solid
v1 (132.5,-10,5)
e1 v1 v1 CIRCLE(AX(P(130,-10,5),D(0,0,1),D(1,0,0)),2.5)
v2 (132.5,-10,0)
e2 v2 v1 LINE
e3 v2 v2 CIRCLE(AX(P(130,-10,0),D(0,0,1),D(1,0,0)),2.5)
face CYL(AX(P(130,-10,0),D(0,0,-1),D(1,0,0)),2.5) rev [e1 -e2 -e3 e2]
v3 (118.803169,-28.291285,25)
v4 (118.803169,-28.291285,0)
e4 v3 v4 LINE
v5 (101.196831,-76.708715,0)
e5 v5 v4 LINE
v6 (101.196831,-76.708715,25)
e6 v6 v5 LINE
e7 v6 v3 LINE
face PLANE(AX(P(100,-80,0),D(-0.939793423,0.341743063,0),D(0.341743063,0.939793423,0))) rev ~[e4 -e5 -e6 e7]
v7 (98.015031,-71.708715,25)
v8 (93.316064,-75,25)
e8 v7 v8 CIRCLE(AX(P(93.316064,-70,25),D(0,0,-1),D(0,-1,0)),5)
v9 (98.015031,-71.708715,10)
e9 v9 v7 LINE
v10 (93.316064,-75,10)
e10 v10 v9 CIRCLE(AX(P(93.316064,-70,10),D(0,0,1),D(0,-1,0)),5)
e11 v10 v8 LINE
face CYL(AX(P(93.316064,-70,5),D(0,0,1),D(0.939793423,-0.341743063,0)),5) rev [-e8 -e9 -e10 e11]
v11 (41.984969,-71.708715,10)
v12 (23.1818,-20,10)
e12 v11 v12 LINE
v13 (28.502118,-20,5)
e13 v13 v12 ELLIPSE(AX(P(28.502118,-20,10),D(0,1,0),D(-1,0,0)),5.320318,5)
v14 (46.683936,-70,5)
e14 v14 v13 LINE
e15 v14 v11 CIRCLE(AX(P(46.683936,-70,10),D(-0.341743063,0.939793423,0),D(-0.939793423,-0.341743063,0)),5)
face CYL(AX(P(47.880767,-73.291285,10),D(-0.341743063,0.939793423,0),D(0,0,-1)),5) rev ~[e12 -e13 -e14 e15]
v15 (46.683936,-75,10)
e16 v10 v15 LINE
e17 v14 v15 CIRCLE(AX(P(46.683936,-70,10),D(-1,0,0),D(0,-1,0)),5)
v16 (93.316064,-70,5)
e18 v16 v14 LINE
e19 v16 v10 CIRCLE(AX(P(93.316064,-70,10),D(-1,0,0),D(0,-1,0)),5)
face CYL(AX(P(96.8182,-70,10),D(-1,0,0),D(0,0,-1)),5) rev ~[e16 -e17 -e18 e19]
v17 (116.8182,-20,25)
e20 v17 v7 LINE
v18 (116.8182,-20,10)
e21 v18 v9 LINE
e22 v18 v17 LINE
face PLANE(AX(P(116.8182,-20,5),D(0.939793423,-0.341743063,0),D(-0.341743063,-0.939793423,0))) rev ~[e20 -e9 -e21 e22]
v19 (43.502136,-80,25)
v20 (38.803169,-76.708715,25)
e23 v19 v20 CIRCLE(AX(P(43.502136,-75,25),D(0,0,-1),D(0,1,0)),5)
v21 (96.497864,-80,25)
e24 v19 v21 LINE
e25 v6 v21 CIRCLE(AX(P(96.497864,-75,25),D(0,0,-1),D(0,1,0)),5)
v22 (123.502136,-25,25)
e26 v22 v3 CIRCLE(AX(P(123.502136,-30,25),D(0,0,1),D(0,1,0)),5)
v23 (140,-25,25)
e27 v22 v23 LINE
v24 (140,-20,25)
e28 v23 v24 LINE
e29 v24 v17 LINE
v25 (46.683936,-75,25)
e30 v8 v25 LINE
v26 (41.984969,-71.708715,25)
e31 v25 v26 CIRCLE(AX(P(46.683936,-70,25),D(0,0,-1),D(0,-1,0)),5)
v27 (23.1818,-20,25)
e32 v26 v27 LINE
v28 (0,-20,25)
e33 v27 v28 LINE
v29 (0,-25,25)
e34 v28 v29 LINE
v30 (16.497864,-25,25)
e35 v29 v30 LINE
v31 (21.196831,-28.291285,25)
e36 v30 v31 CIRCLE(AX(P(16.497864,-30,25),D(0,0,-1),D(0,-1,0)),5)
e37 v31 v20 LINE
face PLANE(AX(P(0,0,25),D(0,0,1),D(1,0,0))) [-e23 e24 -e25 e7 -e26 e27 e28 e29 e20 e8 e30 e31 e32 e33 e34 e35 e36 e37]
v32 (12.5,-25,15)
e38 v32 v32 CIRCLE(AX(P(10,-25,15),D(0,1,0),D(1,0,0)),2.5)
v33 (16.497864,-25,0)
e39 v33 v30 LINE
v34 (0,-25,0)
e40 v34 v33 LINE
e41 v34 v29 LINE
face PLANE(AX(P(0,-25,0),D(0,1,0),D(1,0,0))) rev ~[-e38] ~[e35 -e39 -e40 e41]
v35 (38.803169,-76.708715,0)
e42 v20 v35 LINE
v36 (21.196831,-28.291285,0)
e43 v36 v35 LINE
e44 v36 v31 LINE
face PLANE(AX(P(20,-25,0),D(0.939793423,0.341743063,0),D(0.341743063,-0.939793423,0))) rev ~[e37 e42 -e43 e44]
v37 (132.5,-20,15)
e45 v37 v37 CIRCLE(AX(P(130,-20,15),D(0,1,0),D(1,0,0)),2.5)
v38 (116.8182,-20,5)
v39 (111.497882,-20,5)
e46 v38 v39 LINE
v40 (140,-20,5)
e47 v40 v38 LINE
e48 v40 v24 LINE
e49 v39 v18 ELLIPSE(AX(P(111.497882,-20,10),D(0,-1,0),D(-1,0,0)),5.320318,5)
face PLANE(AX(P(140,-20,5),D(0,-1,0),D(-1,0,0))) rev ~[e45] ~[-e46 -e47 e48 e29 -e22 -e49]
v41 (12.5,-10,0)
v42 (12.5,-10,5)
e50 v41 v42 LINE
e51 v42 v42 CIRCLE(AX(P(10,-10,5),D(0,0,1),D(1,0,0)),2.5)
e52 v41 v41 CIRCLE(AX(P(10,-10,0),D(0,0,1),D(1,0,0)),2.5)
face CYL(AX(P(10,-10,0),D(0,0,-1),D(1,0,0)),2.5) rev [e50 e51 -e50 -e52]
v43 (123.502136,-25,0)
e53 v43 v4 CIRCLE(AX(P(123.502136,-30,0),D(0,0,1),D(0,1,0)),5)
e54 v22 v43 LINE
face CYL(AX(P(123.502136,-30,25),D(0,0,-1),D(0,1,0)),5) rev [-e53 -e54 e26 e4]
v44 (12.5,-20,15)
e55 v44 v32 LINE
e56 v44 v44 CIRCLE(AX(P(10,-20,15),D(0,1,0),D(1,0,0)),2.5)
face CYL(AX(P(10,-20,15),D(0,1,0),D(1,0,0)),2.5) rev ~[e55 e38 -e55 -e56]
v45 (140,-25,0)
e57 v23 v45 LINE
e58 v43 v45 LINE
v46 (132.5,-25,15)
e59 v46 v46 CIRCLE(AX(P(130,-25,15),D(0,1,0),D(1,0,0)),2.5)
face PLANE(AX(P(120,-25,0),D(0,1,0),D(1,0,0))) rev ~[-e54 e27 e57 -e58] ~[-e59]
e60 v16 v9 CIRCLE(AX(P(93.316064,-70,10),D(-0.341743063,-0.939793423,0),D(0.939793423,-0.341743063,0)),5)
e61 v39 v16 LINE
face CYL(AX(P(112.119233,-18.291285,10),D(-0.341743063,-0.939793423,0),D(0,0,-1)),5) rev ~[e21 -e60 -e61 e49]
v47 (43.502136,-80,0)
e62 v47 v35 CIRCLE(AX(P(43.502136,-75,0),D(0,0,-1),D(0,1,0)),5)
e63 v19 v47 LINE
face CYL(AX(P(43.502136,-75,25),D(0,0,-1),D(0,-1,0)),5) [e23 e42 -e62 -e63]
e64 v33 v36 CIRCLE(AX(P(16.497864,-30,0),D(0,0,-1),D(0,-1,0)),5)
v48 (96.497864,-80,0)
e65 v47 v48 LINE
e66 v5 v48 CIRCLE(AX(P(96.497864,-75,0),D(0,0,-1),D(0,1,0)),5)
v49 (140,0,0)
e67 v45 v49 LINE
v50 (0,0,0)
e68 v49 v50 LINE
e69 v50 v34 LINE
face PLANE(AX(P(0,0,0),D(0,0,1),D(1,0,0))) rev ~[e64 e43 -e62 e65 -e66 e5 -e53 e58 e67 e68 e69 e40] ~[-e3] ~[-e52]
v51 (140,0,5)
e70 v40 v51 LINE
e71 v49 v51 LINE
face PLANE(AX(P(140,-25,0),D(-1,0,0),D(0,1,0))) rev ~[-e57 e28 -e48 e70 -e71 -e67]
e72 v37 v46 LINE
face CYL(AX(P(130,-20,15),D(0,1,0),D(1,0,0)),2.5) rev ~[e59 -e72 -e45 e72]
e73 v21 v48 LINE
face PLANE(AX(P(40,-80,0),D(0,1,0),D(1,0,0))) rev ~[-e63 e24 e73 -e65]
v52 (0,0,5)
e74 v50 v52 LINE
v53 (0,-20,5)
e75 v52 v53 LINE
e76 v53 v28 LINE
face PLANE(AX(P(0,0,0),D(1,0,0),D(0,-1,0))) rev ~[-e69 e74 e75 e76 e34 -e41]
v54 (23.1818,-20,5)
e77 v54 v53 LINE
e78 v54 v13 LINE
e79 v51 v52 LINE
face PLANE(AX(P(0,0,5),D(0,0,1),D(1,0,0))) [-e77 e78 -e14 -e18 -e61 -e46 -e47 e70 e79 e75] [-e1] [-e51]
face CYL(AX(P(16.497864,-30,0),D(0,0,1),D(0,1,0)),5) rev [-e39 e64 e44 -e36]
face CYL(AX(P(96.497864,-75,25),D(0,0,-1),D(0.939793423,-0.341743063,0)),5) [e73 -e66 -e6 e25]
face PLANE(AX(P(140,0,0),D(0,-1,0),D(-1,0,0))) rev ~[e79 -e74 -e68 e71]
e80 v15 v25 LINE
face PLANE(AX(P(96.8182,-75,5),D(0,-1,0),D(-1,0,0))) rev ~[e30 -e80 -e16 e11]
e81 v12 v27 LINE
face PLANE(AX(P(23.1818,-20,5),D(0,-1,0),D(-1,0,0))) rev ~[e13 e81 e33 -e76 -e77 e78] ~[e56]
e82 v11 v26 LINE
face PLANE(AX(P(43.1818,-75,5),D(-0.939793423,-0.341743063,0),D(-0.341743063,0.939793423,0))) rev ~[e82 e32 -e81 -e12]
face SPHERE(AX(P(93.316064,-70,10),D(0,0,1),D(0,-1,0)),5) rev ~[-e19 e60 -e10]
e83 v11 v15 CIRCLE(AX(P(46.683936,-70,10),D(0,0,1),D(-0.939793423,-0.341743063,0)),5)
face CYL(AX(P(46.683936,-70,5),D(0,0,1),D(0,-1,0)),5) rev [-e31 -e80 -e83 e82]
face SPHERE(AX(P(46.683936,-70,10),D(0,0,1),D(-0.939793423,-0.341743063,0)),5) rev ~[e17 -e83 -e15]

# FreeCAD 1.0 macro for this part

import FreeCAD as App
import Part
import Sketcher
Q = App.Units.Quantity


def edges_at(feature, points):
    """Names of the edges that pass closest to the given points."""
    edges = feature.Shape.Edges
    near = lambda p: min(range(len(edges)), key=lambda i: edges[i].distToShape(Part.Vertex(*p))[0])
    return sorted({f"Edge{near(p) + 1}" for p in points})


def add_polygon(sketch, points):
    """Adds a closed chain of lines whose ends are joined by coincident constraints."""
    first, n = sketch.GeometryCount, len(points)
    for a, b in zip(points, points[1:] + points[:1]):
        sketch.addGeometry(Part.LineSegment(App.Vector(*a, 0), App.Vector(*b, 0)), False)
    for i in range(n):
        sketch.addConstraint(Sketcher.Constraint("Coincident", first + i, 2, first + (i + 1) % n, 1))

doc = App.newDocument("Part")
body = doc.addObject("PartDesign::Body", "Body")

# Sketch on XY plane
sketch1 = doc.addObject("Sketcher::SketchObject", "Sketch")
body.addObject(sketch1)
sketch1.AttachmentSupport = (doc.XY_Plane, [""])
sketch1.MapMode = "FlatFace"
add_polygon(sketch1, [(140, 0), (0, 0), (0, -25), (20, -25), (40, -80), (100, -80), (120, -25), (140, -25)])  # lines 0-7
sketch1.addGeometry(Part.Circle(App.Vector(10, -10, 0), App.Vector(0, 0, 1), 2.5), False)  # 8
sketch1.addGeometry(Part.Circle(App.Vector(130, -10, 0), App.Vector(0, 0, 1), 2.5), False)  # 9
sketch1.addConstraint([
    Sketcher.Constraint("Horizontal", 0),
    Sketcher.Constraint("Vertical", 1),
    Sketcher.Constraint("Horizontal", 2),
    Sketcher.Constraint("Horizontal", 4),
    Sketcher.Constraint("Horizontal", 6),
    Sketcher.Constraint("Vertical", 7),
    Sketcher.Constraint("Coincident", 0, 2, -1, 1),
    Sketcher.Constraint("Equal", 8, 9),
    Sketcher.Constraint("Horizontal", 8, 3, 9, 3),
    Sketcher.Constraint("Horizontal", 2, 2, 5, 2),
    Sketcher.Constraint("Equal", 2, 6),
    Sketcher.Constraint("Equal", 3, 5),
    Sketcher.Constraint("Diameter", 8, Q("5 mm")),
    Sketcher.Constraint("DistanceX", 0, 2, 0, 1, Q("140 mm")),
    Sketcher.Constraint("DistanceX", 2, 1, 2, 2, Q("20 mm")),
    Sketcher.Constraint("DistanceX", 4, 1, 4, 2, Q("60 mm")),
    Sketcher.Constraint("DistanceY", 1, 2, 1, 1, Q("25 mm")),
    Sketcher.Constraint("DistanceX", -1, 1, 8, 3, Q("10 mm")),
    Sketcher.Constraint("DistanceY", 8, 3, -1, 1, Q("10 mm")),
    Sketcher.Constraint("DistanceX", 5, 2, 9, 3, Q("10 mm")),
    Sketcher.Constraint("DistanceY", 3, 2, -1, 1, Q("80 mm")),
])
pad1 = doc.addObject("PartDesign::Pad", "Pad")
body.addObject(pad1)
pad1.Profile = sketch1
pad1.Length = 5

# Sketch on XY plane
sketch2 = doc.addObject("Sketcher::SketchObject", "Sketch001")
body.addObject(sketch2)
sketch2.AttachmentSupport = (doc.XY_Plane, [""])
sketch2.MapMode = "FlatFace"
sketch2.AttachmentOffset = App.Placement(App.Vector(0, 0, 5), App.Rotation())
add_polygon(sketch2, [(23, -20), (0, -20), (0, -25), (20, -25), (40, -80), (100, -80), (120, -25), (140, -25), (140, -20), (117, -20), (97, -75), (43, -75)])  # lines 0-11
sketch2.addConstraint([
    Sketcher.Constraint("Horizontal", 0),
    Sketcher.Constraint("Vertical", 1),
    Sketcher.Constraint("Horizontal", 2),
    Sketcher.Constraint("Horizontal", 4),
    Sketcher.Constraint("Horizontal", 6),
    Sketcher.Constraint("Vertical", 7),
    Sketcher.Constraint("Horizontal", 8),
    Sketcher.Constraint("Horizontal", 10),
    Sketcher.Constraint("PointOnObject", 0, 2, -2),
    Sketcher.Constraint("Parallel", 5, 9),
    Sketcher.Constraint("Parallel", 3, 11),
    Sketcher.Constraint("Horizontal", 2, 2, 5, 2),
    Sketcher.Constraint("Horizontal", 0, 2, 7, 2),
    Sketcher.Constraint("Equal", 2, 6),
    Sketcher.Constraint("Equal", 0, 8),
    Sketcher.Constraint("Equal", 3, 5),
    Sketcher.Constraint("Equal", 5, 9),
    Sketcher.Constraint("DistanceY", 1, 2, 1, 1, Q("5 mm")),
    Sketcher.Constraint("DistanceX", 2, 1, 2, 2, Q("20 mm")),
    Sketcher.Constraint("DistanceX", 4, 1, 4, 2, Q("60 mm")),
    Sketcher.Constraint("DistanceY", 0, 2, -1, 1, Q("20 mm")),
    Sketcher.Constraint("DistanceX", -1, 1, 3, 2, Q("40 mm")),
    Sketcher.Constraint("DistanceY", 3, 2, -1, 1, Q("80 mm")),
    Sketcher.Constraint("DistanceX", 0, 2, 0, 1, Q("23.1818 mm")),
])
pad2 = doc.addObject("PartDesign::Pad", "Pad001")
body.addObject(pad2)
pad2.Profile = sketch2
pad2.Length = 20

# Sketch on XZ plane
sketch3 = doc.addObject("Sketcher::SketchObject", "Sketch002")
body.addObject(sketch3)
sketch3.AttachmentSupport = (doc.XZ_Plane, [""])
sketch3.MapMode = "FlatFace"
sketch3.AttachmentOffset = App.Placement(App.Vector(0, 0, 20), App.Rotation())
sketch3.addGeometry([
    Part.Circle(App.Vector(130, 15, 0), App.Vector(0, 0, 1), 2.5),
    Part.Circle(App.Vector(10, 15, 0), App.Vector(0, 0, 1), 2.5),
], False)
sketch3.addConstraint([
    Sketcher.Constraint("Equal", 0, 1),
    Sketcher.Constraint("Horizontal", 0, 3, 1, 3),
    Sketcher.Constraint("Diameter", 0, Q("5 mm")),
    Sketcher.Constraint("DistanceX", -1, 1, 1, 3, Q("10 mm")),
    Sketcher.Constraint("DistanceX", -1, 1, 0, 3, Q("130 mm")),
    Sketcher.Constraint("DistanceY", -1, 1, 0, 3, Q("15 mm")),
])
pocket1 = doc.addObject("PartDesign::Pocket", "Pocket")
body.addObject(pocket1)
pocket1.Profile = sketch3
pocket1.Length = 20
pocket1.Reversed = True
doc.recompute()

fillet = doc.addObject("PartDesign::Fillet", "Fillet")
body.addObject(fillet)
fillet.Base = (pocket1, edges_at(pocket1, [(33.182, -47.5, 5), (70, -75, 5), (106.818, -47.5, 5)]))
fillet.Radius = 5
doc.recompute()

fillet2 = doc.addObject("PartDesign::Fillet", "Fillet001")
body.addObject(fillet2)
fillet2.Base = (fillet, edges_at(fillet, [
    (20, -25, 12.5),
    (120, -25, 12.5),
    (43.182, -75, 15),
    (96.818, -75, 15),
    (40, -80, 12.5),
    (100, -80, 12.5),
]))
fillet2.Radius = 5

doc.recompute()
